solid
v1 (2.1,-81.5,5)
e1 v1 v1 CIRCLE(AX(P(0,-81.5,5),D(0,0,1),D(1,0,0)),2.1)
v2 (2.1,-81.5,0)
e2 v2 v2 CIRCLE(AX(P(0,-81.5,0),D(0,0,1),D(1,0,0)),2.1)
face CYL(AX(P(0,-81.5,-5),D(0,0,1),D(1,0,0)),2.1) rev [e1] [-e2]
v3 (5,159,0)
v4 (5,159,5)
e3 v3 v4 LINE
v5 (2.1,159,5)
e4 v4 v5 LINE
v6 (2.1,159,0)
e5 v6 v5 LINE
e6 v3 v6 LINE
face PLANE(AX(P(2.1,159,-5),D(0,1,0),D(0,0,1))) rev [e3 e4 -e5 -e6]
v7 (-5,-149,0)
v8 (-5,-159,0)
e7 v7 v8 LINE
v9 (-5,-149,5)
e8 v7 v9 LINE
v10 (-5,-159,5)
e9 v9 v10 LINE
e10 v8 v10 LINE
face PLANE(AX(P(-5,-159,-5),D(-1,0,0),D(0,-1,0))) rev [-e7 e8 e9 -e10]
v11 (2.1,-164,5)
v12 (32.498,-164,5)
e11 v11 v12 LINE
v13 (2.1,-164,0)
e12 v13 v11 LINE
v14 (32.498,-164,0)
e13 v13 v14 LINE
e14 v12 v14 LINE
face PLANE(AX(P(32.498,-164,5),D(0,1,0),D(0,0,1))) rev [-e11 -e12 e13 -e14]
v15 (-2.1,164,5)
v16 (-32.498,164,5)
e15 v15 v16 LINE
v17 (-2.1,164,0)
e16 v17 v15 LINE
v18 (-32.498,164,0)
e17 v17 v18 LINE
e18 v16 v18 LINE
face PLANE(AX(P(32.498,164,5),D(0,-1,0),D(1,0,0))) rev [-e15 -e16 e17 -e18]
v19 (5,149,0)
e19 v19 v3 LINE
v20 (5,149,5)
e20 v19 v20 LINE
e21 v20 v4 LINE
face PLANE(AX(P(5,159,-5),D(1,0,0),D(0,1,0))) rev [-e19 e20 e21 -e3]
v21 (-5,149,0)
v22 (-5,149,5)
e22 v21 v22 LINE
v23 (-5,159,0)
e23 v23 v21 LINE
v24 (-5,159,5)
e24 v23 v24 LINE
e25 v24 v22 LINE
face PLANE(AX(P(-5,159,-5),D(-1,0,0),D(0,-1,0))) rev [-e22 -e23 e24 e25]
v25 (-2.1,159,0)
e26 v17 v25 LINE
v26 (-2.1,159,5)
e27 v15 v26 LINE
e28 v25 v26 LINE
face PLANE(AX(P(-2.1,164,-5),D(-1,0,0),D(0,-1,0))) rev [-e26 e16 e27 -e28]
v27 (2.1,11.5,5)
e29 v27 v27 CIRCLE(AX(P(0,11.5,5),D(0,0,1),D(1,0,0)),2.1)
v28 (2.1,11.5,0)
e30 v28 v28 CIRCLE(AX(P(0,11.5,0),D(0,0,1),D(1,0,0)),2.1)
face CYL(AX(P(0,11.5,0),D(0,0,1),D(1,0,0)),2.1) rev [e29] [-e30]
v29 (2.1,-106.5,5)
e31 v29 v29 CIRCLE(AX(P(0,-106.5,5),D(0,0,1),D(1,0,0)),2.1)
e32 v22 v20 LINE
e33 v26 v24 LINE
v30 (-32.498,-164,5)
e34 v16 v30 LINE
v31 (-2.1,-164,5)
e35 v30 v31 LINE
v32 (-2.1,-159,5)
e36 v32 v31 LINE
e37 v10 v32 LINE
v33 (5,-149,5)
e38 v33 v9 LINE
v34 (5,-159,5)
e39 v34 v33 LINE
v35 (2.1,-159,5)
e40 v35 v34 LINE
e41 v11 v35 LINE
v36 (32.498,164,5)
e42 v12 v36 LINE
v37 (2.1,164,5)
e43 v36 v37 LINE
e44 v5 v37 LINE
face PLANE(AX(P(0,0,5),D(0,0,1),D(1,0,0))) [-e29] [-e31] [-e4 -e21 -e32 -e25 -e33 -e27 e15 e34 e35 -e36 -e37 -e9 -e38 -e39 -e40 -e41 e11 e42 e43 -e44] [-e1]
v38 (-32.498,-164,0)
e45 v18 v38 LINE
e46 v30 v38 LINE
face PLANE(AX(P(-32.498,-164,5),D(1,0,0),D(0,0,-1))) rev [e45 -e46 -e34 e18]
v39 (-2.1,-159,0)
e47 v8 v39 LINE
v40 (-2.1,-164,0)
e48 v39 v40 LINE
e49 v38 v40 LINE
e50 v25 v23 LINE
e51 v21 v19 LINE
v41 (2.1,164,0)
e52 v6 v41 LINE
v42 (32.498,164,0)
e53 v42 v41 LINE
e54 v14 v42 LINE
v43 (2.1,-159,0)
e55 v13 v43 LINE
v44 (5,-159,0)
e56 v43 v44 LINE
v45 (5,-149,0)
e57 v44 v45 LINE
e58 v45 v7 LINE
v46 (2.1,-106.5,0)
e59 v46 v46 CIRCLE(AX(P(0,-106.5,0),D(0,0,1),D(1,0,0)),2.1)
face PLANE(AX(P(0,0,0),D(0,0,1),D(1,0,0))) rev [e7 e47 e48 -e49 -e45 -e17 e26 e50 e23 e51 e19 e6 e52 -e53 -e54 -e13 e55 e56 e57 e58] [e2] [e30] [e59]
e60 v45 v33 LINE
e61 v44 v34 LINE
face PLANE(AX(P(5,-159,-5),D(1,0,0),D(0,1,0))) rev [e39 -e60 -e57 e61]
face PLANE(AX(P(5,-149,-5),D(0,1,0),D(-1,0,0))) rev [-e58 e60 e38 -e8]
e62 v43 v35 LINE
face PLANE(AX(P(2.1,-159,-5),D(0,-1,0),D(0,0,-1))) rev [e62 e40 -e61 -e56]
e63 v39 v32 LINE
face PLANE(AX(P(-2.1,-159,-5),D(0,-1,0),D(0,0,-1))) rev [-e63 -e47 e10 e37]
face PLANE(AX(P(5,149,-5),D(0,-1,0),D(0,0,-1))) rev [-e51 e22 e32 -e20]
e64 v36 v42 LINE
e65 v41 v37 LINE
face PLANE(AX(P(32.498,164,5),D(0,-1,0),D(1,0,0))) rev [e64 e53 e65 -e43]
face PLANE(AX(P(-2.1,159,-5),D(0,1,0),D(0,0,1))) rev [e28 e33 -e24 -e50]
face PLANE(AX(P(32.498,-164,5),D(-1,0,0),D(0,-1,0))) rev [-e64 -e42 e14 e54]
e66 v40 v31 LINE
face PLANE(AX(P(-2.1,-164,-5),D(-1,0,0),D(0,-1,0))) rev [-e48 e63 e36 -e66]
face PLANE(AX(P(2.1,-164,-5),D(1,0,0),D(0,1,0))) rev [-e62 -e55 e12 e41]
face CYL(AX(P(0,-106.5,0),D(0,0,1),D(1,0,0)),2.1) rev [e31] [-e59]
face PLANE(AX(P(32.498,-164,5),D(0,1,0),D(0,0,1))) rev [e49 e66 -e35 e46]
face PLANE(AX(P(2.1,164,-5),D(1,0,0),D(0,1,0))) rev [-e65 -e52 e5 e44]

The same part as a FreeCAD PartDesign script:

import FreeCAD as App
import Part
import Sketcher

doc = App.newDocument("Part")
body = doc.addObject("PartDesign::Body", "Body")

# Sketch on XY plane
sketch1 = doc.addObject("Sketcher::SketchObject", "Sketch")
body.addObject(sketch1)
sketch1.AttachmentSupport = (doc.XY_Plane, [""])
sketch1.MapMode = "FlatFace"
sketch1.addGeometry([
    Part.LineSegment(App.Vector(-32.498, 164, 0), App.Vector(-32.498, -164, 0)),
    Part.LineSegment(App.Vector(-32.498, -164, 0), App.Vector(32.498, -164, 0)),
    Part.LineSegment(App.Vector(32.498, -164, 0), App.Vector(32.498, 164, 0)),
    Part.LineSegment(App.Vector(32.498, 164, 0), App.Vector(-32.498, 164, 0)),
], False)
sketch1.addConstraint([
    Sketcher.Constraint("Coincident", 0, 2, 1, 1),
    Sketcher.Constraint("Coincident", 1, 2, 2, 1),
    Sketcher.Constraint("Coincident", 2, 2, 3, 1),
    Sketcher.Constraint("Coincident", 3, 2, 0, 1),
    Sketcher.Constraint("Vertical", 0),
    Sketcher.Constraint("Horizontal", 1),
    Sketcher.Constraint("Vertical", 2),
    Sketcher.Constraint("Horizontal", 3),
    Sketcher.Constraint("Symmetric", 0, 2, 2, 2, -1, 1),
    Sketcher.Constraint("DistanceY", 0, 2, 0, 1, 328.0),
    Sketcher.Constraint("DistanceX", 1, 1, 1, 2, 64.996),
])
pad1 = doc.addObject("PartDesign::Pad", "Pad")
body.addObject(pad1)
pad1.Profile = sketch1
pad1.Length = 5

# Sketch on XY plane
sketch2 = doc.addObject("Sketcher::SketchObject", "Sketch001")
body.addObject(sketch2)
sketch2.AttachmentSupport = (doc.XY_Plane, [""])
sketch2.MapMode = "FlatFace"
sketch2.AttachmentOffset = App.Placement(App.Vector(0, 0, 5), App.Rotation())
sketch2.addGeometry(Part.Circle(App.Vector(0, -81.5, 0), App.Vector(0, 0, 1), 2.1), False)
sketch2.addConstraint([
    Sketcher.Constraint("PointOnObject", 0, 3, -2),
    Sketcher.Constraint("Diameter", 0, 4.2),
    Sketcher.Constraint("DistanceY", 0, 3, -1, 1, 81.5),
])
pocket1 = doc.addObject("PartDesign::Pocket", "Pocket")
body.addObject(pocket1)
pocket1.Profile = sketch2
pocket1.Length = 10

# Sketch on XY plane
sketch3 = doc.addObject("Sketcher::SketchObject", "Sketch002")
body.addObject(sketch3)
sketch3.AttachmentSupport = (doc.XY_Plane, [""])
sketch3.MapMode = "FlatFace"
sketch3.AttachmentOffset = App.Placement(App.Vector(0, 0, 5), App.Rotation())
sketch3.addGeometry([
    Part.LineSegment(App.Vector(2.1, 164, 0), App.Vector(-2.1, 164, 0)),  # 0
    Part.LineSegment(App.Vector(-2.1, 164, 0), App.Vector(-2.1, 159, 0)),  # 1
    Part.LineSegment(App.Vector(-2.1, 159, 0), App.Vector(-5, 159, 0)),  # 2
    Part.LineSegment(App.Vector(-5, 159, 0), App.Vector(-5, 149, 0)),  # 3
    Part.LineSegment(App.Vector(-5, 149, 0), App.Vector(5, 149, 0)),  # 4
    Part.LineSegment(App.Vector(5, 149, 0), App.Vector(5, 159, 0)),  # 5
    Part.LineSegment(App.Vector(5, 159, 0), App.Vector(2.1, 159, 0)),  # 6
    Part.LineSegment(App.Vector(2.1, 159, 0), App.Vector(2.1, 164, 0)),  # 7
    Part.LineSegment(App.Vector(-2.1, -159, 0), App.Vector(-2.1, -164, 0)),  # 8
    Part.LineSegment(App.Vector(-2.1, -164, 0), App.Vector(2.1, -164, 0)),  # 9
    Part.LineSegment(App.Vector(2.1, -164, 0), App.Vector(2.1, -159, 0)),  # 10
    Part.LineSegment(App.Vector(2.1, -159, 0), App.Vector(5, -159, 0)),  # 11
    Part.LineSegment(App.Vector(5, -159, 0), App.Vector(5, -149, 0)),  # 12
    Part.LineSegment(App.Vector(5, -149, 0), App.Vector(-5, -149, 0)),  # 13
    Part.LineSegment(App.Vector(-5, -149, 0), App.Vector(-5, -159, 0)),  # 14
    Part.LineSegment(App.Vector(-5, -159, 0), App.Vector(-2.1, -159, 0)),  # 15
], False)
sketch3.addConstraint([
    Sketcher.Constraint("Coincident", 0, 2, 1, 1),
    Sketcher.Constraint("Coincident", 1, 2, 2, 1),
    Sketcher.Constraint("Coincident", 2, 2, 3, 1),
    Sketcher.Constraint("Coincident", 3, 2, 4, 1),
    Sketcher.Constraint("Coincident", 4, 2, 5, 1),
    Sketcher.Constraint("Coincident", 5, 2, 6, 1),
    Sketcher.Constraint("Coincident", 6, 2, 7, 1),
    Sketcher.Constraint("Coincident", 7, 2, 0, 1),
    Sketcher.Constraint("Coincident", 8, 2, 9, 1),
    Sketcher.Constraint("Coincident", 9, 2, 10, 1),
    Sketcher.Constraint("Coincident", 10, 2, 11, 1),
    Sketcher.Constraint("Coincident", 11, 2, 12, 1),
    Sketcher.Constraint("Coincident", 12, 2, 13, 1),
    Sketcher.Constraint("Coincident", 13, 2, 14, 1),
    Sketcher.Constraint("Coincident", 14, 2, 15, 1),
    Sketcher.Constraint("Coincident", 15, 2, 8, 1),
    Sketcher.Constraint("Horizontal", 0),
    Sketcher.Constraint("Vertical", 1),
    Sketcher.Constraint("Horizontal", 2),
    Sketcher.Constraint("Vertical", 3),
    Sketcher.Constraint("Horizontal", 4),
    Sketcher.Constraint("Vertical", 5),
    Sketcher.Constraint("Horizontal", 6),
    Sketcher.Constraint("Vertical", 7),
    Sketcher.Constraint("Vertical", 8),
    Sketcher.Constraint("Horizontal", 9),
    Sketcher.Constraint("Vertical", 10),
    Sketcher.Constraint("Horizontal", 11),
    Sketcher.Constraint("Vertical", 12),
    Sketcher.Constraint("Horizontal", 13),
    Sketcher.Constraint("Vertical", 14),
    Sketcher.Constraint("Horizontal", 15),
    Sketcher.Constraint("Symmetric", 7, 2, 8, 2, -1, 1),
    Sketcher.Constraint("Symmetric", 1, 2, 10, 2, -1, 1),
    Sketcher.Constraint("Symmetric", 3, 2, 12, 2, -1, 1),
    Sketcher.Constraint("Symmetric", 5, 2, 14, 2, -1, 1),
    Sketcher.Constraint("Symmetric", 2, 2, 5, 2, -2),
    Sketcher.Constraint("Vertical", 1, 2, 8, 2),
    Sketcher.Constraint("Equal", 13, 3),
    Sketcher.Constraint("DistanceX", 4, 1, 4, 2, 10.0),
    Sketcher.Constraint("DistanceY", 1, 2, 1, 1, 5.0),
    Sketcher.Constraint("DistanceX", 0, 2, 0, 1, 4.2),
    Sketcher.Constraint("DistanceY", -1, 1, 0, 2, 164.0),
])
pocket2 = doc.addObject("PartDesign::Pocket", "Pocket001")
body.addObject(pocket2)
pocket2.Profile = sketch3
pocket2.Length = 10

# Sketch on XY plane
sketch4 = doc.addObject("Sketcher::SketchObject", "Sketch003")
body.addObject(sketch4)
sketch4.AttachmentSupport = (doc.XY_Plane, [""])
sketch4.MapMode = "FlatFace"
sketch4.AttachmentOffset = App.Placement(App.Vector(0, 0, 5), App.Rotation())
sketch4.addGeometry(Part.Circle(App.Vector(0, -106.5, 0), App.Vector(0, 0, 1), 2.1), False)
sketch4.addConstraint([
    Sketcher.Constraint("PointOnObject", 0, 3, -2),
    Sketcher.Constraint("Diameter", 0, 4.2),
    Sketcher.Constraint("DistanceY", 0, 3, -1, 1, 106.5),
])
pocket3 = doc.addObject("PartDesign::Pocket", "Pocket002")
body.addObject(pocket3)
pocket3.Profile = sketch4
pocket3.Length = 5

# Sketch on XY plane
sketch5 = doc.addObject("Sketcher::SketchObject", "Sketch004")
body.addObject(sketch5)
sketch5.AttachmentSupport = (doc.XY_Plane, [""])
sketch5.MapMode = "FlatFace"
sketch5.AttachmentOffset = App.Placement(App.Vector(0, 0, 5), App.Rotation())
sketch5.addGeometry(Part.Circle(App.Vector(0, 11.5, 0), App.Vector(0, 0, 1), 2.1), False)
sketch5.addConstraint([
    Sketcher.Constraint("PointOnObject", 0, 3, -2),
    Sketcher.Constraint("Diameter", 0, 4.2),
    Sketcher.Constraint("DistanceY", -1, 1, 0, 3, 11.5),
])
pocket4 = doc.addObject("PartDesign::Pocket", "Pocket003")
body.addObject(pocket4)
pocket4.Profile = sketch5
pocket4.Length = 5

doc.recompute()
